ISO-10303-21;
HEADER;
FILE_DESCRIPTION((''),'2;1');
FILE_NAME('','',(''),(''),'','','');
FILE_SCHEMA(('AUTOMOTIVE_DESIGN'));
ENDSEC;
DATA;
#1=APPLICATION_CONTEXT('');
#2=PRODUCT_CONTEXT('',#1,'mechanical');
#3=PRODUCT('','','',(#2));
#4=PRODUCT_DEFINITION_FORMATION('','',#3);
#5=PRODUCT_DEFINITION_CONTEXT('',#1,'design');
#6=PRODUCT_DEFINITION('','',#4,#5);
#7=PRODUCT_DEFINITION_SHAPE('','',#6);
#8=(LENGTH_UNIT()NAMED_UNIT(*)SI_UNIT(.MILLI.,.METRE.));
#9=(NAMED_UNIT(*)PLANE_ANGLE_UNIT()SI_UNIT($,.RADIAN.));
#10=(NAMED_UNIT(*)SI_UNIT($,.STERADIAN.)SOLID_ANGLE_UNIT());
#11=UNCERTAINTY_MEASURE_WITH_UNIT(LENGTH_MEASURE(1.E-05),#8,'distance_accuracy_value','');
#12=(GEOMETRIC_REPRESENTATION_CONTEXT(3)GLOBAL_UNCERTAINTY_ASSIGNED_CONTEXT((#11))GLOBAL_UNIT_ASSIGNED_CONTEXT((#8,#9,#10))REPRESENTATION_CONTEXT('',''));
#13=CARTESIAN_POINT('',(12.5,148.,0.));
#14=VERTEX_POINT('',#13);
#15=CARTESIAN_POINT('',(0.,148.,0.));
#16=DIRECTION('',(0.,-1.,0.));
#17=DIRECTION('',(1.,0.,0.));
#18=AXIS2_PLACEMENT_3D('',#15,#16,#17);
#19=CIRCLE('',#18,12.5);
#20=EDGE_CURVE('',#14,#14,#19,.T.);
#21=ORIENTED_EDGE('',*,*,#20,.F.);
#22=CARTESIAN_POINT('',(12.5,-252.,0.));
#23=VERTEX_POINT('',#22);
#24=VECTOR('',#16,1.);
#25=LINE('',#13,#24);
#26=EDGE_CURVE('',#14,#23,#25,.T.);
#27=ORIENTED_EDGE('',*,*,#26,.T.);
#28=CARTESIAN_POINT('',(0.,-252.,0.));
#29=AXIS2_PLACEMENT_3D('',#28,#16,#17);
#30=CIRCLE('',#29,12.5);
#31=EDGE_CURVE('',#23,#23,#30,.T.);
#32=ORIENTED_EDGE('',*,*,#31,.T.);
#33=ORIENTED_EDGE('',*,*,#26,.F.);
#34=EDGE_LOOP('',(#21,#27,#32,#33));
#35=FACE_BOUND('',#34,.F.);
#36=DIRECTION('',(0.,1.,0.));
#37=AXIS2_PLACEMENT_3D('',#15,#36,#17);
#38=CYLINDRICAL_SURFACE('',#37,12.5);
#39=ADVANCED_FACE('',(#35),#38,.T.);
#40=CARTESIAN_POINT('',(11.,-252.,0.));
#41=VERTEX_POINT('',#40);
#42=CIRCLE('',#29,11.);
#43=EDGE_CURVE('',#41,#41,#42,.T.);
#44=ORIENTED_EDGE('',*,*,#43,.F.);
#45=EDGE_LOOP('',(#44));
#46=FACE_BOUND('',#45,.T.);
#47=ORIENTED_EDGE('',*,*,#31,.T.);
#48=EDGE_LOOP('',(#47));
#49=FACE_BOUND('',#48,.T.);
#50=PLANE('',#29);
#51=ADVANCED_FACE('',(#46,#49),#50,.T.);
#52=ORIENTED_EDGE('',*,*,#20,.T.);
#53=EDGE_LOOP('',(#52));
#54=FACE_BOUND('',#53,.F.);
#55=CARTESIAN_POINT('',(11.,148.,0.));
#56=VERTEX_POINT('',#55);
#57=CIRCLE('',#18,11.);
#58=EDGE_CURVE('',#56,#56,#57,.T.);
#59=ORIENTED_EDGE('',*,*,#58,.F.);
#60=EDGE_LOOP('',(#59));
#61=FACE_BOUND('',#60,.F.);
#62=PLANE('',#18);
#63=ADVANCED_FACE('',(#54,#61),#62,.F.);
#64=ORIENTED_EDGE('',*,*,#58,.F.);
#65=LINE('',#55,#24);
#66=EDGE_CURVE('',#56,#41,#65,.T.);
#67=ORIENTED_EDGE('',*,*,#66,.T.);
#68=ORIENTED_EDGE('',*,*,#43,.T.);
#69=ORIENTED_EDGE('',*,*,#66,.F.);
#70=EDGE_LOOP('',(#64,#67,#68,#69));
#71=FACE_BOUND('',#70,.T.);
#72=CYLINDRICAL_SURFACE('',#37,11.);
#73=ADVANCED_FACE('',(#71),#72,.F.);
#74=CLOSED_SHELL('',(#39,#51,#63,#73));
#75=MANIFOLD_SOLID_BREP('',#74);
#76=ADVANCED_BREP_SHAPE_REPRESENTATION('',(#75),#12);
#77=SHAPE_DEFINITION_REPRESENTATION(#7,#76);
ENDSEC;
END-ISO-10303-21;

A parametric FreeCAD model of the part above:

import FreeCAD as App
import Part
import Sketcher
from FreeCAD import Vector
Q = App.Units.Quantity

doc = App.newDocument("Part")
params = doc.addObject("Spreadsheet::Sheet", "Params")
for row, (alias, value) in enumerate([
    ("sketch1_diameter", "25 mm"),
    ("sketch1_diameter2", "22 mm"),
    ("pad1_length", "400 mm"),
], start=1):
    params.set(f"A{row}", alias)
    params.set(f"B{row}", "=" + value)
    params.setAlias(f"B{row}", alias)

body = doc.addObject("PartDesign::Body", "Body")

# Sketch on XZ plane
sketch1 = body.newObject("Sketcher::SketchObject", "Sketch")
sketch1.AttachmentSupport = (doc.getObject("XZ_Plane"), [""])
sketch1.MapMode = "FlatFace"
sketch1.AttachmentOffset = App.Placement(Vector(0, 0, -148), App.Rotation())
sketch1.addGeometry([
    Part.Circle(Vector(0, 0, 0), Vector(0, 0, 1), 12),
    Part.Circle(Vector(0, 0, 0), Vector(0, 0, 1), 11),
], False)
sketch1.addConstraint([
    Sketcher.Constraint("Coincident", 0, 3, -1, 1),
    Sketcher.Constraint("Coincident", 1, 3, -1, 1),
    Sketcher.Constraint("Diameter", 0, Q("25 mm")),
    Sketcher.Constraint("Diameter", 1, Q("22 mm")),
])
sketch1.setExpression("Constraints[2]", "Params.sketch1_diameter")
sketch1.setExpression("Constraints[3]", "Params.sketch1_diameter2")
pad1 = body.newObject("PartDesign::Pad", "Pad")
pad1.Profile = sketch1
pad1.setExpression("Length", "Params.pad1_length")

doc.recompute()
